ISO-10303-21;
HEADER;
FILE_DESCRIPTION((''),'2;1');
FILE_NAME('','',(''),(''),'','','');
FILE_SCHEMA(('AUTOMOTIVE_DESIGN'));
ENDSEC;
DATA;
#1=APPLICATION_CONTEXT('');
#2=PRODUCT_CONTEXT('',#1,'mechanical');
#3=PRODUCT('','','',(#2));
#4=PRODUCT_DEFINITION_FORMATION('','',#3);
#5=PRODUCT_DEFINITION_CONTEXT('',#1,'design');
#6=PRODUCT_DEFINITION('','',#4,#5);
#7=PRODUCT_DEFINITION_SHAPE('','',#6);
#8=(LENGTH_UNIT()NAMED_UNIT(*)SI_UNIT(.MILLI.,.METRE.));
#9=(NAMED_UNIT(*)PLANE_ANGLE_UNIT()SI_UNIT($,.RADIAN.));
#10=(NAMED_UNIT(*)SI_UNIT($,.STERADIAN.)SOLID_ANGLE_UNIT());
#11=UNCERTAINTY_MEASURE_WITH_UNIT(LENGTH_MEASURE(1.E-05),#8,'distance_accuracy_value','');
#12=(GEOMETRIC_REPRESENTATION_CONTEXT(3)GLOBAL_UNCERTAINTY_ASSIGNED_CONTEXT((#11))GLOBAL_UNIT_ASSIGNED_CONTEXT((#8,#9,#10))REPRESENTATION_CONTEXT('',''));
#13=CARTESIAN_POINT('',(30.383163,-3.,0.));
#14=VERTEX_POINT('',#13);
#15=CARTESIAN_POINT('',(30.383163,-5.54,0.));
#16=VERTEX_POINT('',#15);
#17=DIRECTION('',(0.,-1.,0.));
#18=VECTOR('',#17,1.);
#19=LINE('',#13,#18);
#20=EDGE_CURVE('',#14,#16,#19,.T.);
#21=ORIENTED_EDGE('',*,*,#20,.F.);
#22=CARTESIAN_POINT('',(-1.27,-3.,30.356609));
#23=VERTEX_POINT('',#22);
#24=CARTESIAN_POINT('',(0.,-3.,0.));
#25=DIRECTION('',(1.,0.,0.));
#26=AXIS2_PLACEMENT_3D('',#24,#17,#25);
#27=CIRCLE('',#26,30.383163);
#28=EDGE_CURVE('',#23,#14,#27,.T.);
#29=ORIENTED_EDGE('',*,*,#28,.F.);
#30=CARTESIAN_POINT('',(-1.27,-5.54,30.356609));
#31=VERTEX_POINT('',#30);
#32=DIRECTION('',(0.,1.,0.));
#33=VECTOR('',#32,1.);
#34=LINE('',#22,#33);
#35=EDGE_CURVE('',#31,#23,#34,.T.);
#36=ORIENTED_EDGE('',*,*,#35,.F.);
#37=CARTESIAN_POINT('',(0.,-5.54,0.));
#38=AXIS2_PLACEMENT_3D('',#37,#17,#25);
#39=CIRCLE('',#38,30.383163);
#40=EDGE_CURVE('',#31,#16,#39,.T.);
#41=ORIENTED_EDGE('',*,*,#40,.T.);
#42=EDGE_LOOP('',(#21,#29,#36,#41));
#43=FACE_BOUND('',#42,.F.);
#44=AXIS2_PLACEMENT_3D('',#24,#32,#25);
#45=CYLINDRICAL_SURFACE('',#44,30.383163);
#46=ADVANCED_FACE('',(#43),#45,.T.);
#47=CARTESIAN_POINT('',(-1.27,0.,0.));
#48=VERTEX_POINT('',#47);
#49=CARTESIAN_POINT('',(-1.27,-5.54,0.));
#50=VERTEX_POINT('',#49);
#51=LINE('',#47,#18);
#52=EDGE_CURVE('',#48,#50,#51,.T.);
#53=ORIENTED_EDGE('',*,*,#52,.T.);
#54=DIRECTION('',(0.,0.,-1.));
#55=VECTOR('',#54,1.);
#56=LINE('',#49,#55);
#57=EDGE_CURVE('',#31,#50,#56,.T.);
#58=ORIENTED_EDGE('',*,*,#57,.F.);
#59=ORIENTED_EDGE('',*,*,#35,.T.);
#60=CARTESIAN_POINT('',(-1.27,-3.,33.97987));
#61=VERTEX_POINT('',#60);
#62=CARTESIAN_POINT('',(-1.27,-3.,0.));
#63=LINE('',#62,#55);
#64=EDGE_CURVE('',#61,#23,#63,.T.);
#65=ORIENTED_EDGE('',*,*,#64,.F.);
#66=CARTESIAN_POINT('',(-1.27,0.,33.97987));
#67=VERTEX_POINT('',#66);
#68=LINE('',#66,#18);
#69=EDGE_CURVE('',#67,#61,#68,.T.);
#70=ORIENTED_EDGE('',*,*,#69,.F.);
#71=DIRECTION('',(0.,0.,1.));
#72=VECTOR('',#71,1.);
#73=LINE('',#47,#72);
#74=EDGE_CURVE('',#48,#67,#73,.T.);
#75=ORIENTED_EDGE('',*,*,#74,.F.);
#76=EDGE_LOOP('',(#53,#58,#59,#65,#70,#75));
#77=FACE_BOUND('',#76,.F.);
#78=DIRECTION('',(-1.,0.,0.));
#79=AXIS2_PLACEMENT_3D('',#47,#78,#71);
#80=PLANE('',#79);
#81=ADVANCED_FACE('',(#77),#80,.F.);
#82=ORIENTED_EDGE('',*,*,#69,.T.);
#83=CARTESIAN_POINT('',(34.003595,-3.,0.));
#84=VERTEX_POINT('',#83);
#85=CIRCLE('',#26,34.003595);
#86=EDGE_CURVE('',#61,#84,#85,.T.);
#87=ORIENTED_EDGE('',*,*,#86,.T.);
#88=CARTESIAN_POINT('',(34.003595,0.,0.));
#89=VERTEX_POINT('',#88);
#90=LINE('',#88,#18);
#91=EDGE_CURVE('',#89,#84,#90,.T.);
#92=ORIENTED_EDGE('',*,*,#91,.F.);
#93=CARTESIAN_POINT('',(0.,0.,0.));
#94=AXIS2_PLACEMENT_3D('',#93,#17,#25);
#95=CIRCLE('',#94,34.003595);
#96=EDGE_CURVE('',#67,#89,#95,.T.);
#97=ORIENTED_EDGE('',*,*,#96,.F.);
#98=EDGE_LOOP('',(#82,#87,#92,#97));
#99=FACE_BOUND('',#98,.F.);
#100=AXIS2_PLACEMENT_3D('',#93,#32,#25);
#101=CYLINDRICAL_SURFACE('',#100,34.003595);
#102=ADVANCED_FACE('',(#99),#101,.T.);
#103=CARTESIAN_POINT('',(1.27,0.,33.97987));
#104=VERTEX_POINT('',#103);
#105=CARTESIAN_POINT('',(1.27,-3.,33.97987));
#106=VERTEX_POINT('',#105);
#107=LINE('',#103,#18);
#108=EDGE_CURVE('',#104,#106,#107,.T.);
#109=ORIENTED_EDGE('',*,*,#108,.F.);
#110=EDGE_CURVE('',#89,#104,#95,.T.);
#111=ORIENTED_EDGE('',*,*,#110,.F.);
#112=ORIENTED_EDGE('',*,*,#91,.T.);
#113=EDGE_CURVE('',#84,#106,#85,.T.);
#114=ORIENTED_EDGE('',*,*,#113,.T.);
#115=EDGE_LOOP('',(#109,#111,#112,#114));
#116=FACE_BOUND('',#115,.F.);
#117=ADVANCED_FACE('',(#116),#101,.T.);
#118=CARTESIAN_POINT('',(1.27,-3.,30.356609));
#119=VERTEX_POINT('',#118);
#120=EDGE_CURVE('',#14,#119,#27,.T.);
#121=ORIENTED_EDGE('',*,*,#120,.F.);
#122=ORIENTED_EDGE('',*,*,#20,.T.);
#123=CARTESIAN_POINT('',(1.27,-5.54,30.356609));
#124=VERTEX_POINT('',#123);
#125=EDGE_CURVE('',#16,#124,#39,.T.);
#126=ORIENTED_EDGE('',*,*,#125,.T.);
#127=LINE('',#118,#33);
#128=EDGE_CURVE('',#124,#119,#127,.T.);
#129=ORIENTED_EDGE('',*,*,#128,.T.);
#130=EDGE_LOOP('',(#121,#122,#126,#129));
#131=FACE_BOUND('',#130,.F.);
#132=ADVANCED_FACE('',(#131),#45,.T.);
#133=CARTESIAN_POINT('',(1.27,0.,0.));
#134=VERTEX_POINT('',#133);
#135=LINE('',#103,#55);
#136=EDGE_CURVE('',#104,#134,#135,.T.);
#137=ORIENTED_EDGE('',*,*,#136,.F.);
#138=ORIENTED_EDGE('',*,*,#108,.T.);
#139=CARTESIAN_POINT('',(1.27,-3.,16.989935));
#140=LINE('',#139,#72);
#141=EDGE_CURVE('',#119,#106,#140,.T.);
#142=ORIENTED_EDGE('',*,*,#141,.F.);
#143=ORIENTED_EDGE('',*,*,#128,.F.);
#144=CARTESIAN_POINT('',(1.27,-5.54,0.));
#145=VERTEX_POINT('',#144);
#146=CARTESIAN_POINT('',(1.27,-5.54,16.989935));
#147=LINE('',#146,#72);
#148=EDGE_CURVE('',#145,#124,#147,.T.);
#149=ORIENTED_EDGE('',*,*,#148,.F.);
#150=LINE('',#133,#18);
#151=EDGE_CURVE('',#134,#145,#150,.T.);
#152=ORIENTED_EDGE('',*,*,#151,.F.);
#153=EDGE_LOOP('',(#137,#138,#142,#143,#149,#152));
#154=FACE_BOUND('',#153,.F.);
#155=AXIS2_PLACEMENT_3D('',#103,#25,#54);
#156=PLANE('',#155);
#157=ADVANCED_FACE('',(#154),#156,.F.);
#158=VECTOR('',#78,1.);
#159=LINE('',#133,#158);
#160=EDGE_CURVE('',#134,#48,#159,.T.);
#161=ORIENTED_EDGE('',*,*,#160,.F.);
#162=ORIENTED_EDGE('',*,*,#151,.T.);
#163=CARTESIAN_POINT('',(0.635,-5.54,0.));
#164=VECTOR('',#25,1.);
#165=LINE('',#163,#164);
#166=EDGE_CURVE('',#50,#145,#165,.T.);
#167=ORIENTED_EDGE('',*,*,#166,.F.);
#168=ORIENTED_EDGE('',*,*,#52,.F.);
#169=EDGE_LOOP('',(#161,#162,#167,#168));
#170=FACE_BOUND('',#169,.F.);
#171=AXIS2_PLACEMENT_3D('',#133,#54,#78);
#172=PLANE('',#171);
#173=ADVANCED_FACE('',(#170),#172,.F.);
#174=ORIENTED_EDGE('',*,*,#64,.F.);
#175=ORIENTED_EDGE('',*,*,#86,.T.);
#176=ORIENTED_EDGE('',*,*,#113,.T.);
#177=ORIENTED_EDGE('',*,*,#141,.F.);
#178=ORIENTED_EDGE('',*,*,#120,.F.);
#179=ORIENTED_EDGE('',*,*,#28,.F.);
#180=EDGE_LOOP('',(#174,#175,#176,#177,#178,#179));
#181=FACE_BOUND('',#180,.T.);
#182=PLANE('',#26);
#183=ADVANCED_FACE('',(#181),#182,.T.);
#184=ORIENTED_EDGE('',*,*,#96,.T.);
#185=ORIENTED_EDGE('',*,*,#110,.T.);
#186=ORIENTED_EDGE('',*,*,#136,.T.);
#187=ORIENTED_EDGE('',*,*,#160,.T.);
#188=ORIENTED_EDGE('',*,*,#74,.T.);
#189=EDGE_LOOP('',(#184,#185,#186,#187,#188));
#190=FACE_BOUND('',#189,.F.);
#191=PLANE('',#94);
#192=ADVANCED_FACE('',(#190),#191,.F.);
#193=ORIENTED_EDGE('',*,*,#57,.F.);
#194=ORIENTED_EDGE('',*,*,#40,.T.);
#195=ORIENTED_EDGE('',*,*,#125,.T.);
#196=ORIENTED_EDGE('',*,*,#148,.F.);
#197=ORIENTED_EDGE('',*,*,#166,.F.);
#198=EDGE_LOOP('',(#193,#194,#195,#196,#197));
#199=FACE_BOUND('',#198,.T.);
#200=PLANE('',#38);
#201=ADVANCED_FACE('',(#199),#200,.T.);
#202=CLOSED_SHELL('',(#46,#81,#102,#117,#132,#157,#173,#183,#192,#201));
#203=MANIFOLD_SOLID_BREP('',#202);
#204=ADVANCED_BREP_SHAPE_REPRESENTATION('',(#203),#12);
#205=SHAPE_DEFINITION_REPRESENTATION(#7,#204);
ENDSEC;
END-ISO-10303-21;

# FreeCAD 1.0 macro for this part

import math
import FreeCAD as App
import Part
import Sketcher
from FreeCAD import Vector
Q = App.Units.Quantity

doc = App.newDocument("Part")
body = doc.addObject("PartDesign::Body", "Body")

sketch1 = body.newObject("Sketcher::SketchObject", "Sketch")
sketch1.AttachmentSupport = (doc.getObject("XZ_Plane"), [""])
sketch1.MapMode = "FlatFace"
sketch1.addGeometry(Part.Circle(Vector(0, 0, 0), Vector(0, 0, 1), 34), False)
sketch1.addConstraint(Sketcher.Constraint("Coincident", 0, 3, -1, 1))
sketch1.addConstraint(Sketcher.Constraint("Diameter", 0, 68.00719))
pad1 = body.newObject("PartDesign::Pad", "Pad")
pad1.Profile = sketch1
pad1.Length = 3

sketch2 = body.newObject("Sketcher::SketchObject", "Sketch001")
sketch2.AttachmentSupport = (doc.getObject("XZ_Plane"), [""])
sketch2.MapMode = "FlatFace"
sketch2.AttachmentOffset = App.Placement(Vector(0, 0, 3), App.Rotation())
sketch2.addGeometry(Part.Circle(Vector(0, 0, 0), Vector(0, 0, 1), 30), False)
sketch2.addConstraint(Sketcher.Constraint("Coincident", 0, 3, -1, 1))
sketch2.addConstraint(Sketcher.Constraint("Diameter", 0, 60.766326))
pad2 = body.newObject("PartDesign::Pad", "Pad001")
pad2.Profile = sketch2
pad2.Length = Q("0.1 in")

sketch3 = body.newObject("Sketcher::SketchObject", "Sketch002")
sketch3.AttachmentSupport = (doc.getObject("XZ_Plane"), [""])
sketch3.MapMode = "FlatFace"
sketch3.addGeometry(Part.LineSegment(Vector(1.3, 0, 0), Vector(-1.3, 0, 0)), False)
sketch3.addGeometry(Part.LineSegment(Vector(-1.3, 0, 0), Vector(-1.3, 34, 0)), False)
sketch3.addGeometry(Part.ArcOfCircle(Part.Circle(Vector(0, 0, 0), Vector(0, 0, 1), 34), math.radians(87.86), math.radians(92.14)), False)
sketch3.addGeometry(Part.LineSegment(Vector(1.3, 34, 0), Vector(1.3, 0, 0)), False)
sketch3.addConstraint(Sketcher.Constraint("Coincident", 0, 2, 1, 1))
sketch3.addConstraint(Sketcher.Constraint("Coincident", 1, 2, 2, 2))
sketch3.addConstraint(Sketcher.Constraint("Coincident", 2, 1, 3, 1))
sketch3.addConstraint(Sketcher.Constraint("Coincident", 3, 2, 0, 1))
sketch3.addConstraint(Sketcher.Constraint("Horizontal", 0))
sketch3.addConstraint(Sketcher.Constraint("Vertical", 1))
sketch3.addConstraint(Sketcher.Constraint("Vertical", 3))
sketch3.addConstraint(Sketcher.Constraint("Symmetric", 0, 2, 3, 2, -1, 1))
sketch3.addConstraint(Sketcher.Constraint("PointOnObject", 2, 3, -2))
sketch3.addConstraint(Sketcher.Constraint("DistanceX", 0, 2, 0, 1, Q("0.1 in")))
sketch3.addConstraint(Sketcher.Constraint("Radius", 2, 34.003433))
sketch3.addConstraint(Sketcher.Constraint("DistanceY", 1, 1, 1, 2, 33.97987))
pocket1 = body.newObject("PartDesign::Pocket", "Pocket")
pocket1.Profile = sketch3
pocket1.Length = Q("1 in")
pocket1.Reversed = True

doc.recompute()
